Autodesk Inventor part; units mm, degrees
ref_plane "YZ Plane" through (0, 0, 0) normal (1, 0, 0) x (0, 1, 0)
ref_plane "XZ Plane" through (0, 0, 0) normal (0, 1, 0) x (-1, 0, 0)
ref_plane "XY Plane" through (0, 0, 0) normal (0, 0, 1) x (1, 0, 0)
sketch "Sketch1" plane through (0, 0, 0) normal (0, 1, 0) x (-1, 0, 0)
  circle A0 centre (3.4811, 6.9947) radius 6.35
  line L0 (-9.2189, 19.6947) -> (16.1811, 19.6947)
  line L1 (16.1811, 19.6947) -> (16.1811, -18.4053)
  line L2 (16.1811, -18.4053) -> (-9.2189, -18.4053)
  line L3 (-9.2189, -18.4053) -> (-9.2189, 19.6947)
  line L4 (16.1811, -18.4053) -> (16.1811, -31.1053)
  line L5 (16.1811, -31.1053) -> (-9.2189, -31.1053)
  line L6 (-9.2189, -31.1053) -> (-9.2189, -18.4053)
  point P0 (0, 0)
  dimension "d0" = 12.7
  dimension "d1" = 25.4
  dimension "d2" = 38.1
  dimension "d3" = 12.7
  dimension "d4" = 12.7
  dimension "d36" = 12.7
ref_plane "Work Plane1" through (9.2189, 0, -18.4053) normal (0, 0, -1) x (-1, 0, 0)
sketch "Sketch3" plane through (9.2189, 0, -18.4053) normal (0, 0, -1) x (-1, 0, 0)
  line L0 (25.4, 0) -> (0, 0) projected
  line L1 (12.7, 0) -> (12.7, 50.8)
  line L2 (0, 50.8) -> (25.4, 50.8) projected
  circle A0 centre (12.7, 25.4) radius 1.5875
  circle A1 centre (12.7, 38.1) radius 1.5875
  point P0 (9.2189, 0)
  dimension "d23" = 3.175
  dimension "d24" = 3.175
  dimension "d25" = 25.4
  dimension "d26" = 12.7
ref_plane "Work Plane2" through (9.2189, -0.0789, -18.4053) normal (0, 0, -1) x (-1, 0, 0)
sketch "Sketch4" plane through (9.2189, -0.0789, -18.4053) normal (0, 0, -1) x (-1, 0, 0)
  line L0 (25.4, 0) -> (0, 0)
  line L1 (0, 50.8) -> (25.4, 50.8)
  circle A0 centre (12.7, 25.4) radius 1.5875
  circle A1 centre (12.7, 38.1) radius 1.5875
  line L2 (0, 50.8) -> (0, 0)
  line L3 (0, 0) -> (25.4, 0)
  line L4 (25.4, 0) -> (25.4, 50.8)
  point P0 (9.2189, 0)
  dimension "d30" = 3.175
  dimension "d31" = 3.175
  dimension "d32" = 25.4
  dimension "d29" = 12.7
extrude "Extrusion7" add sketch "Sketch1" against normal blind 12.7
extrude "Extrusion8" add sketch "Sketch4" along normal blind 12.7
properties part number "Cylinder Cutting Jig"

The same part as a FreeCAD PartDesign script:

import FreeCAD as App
import Part
import Sketcher
Q = App.Units.Quantity


def add_polygon(sketch, points):
    """Adds a closed chain of lines whose ends are joined by coincident constraints."""
    first, n = sketch.GeometryCount, len(points)
    for a, b in zip(points, points[1:] + points[:1]):
        sketch.addGeometry(Part.LineSegment(App.Vector(*a, 0), App.Vector(*b, 0)), False)
    for i in range(n):
        sketch.addConstraint(Sketcher.Constraint("Coincident", first + i, 2, first + (i + 1) % n, 1))

doc = App.newDocument("Part")
params = doc.addObject("Spreadsheet::Sheet", "Params")
for row, (alias, value) in enumerate([
    ("sketch1_diameter", "0.5 in"),
    ("sketch1_width", "1 in"),
    ("pad1_length", "0.5 in"),
    ("sketch2_width", "1 in"),
    ("sketch2_diameter", "0.125 in"),
    ("pad2_length", "0.5 in"),
], start=1):
    params.set(f"A{row}", alias)
    params.set(f"B{row}", "=" + value)
    params.setAlias(f"B{row}", alias)

body = doc.addObject("PartDesign::Body", "Body")

# Sketch on XZ plane
sketch1 = body.newObject("Sketcher::SketchObject", "Sketch")
sketch1.AttachmentSupport = (doc.getObject("XZ_Plane"), [""])
sketch1.MapMode = "FlatFace"
add_polygon(sketch1, [(-16, 20), (9, 20), (9, -31), (-16, -31)])  # lines 0-3
sketch1.addGeometry(Part.Circle(App.Vector(-3, 7, 0), App.Vector(0, 0, 1), 6), False)  # 4
sketch1.addConstraint(Sketcher.Constraint("Horizontal", 0))
sketch1.addConstraint(Sketcher.Constraint("Vertical", 1))
sketch1.addConstraint(Sketcher.Constraint("Horizontal", 2))
sketch1.addConstraint(Sketcher.Constraint("Vertical", 3))
sketch1.addConstraint(Sketcher.Constraint("Diameter", 4, Q("0.5 in")))
sketch1.addConstraint(Sketcher.Constraint("DistanceX", 0, 1, 0, 2, Q("1 in")))
sketch1.addConstraint(Sketcher.Constraint("DistanceX", 4, 3, 0, 2, Q("0.5 in")))
sketch1.addConstraint(Sketcher.Constraint("DistanceY", 4, 3, 0, 2, Q("0.5 in")))
sketch1.addConstraint(Sketcher.Constraint("DistanceY", 1, 2, 4, 3, Q("1.5 in")))
sketch1.addConstraint(Sketcher.Constraint("DistanceX", 4, 3, -1, 1, 3.481))
sketch1.addConstraint(Sketcher.Constraint("DistanceY", -1, 1, 4, 3, 6.9947))
sketch1.setExpression("Constraints[8]", "Params.sketch1_diameter")
sketch1.setExpression("Constraints[9]", "Params.sketch1_width")
pad1 = body.newObject("PartDesign::Pad", "Pad")
pad1.Profile = sketch1
pad1.setExpression("Length", "Params.pad1_length")

# Sketch on XY plane
sketch2 = body.newObject("Sketcher::SketchObject", "Sketch001")
sketch2.AttachmentSupport = (doc.getObject("XY_Plane"), [""])
sketch2.MapMode = "FlatFace"
sketch2.AttachmentOffset = App.Placement(App.Vector(0, 0, -18.4053), App.Rotation())
add_polygon(sketch2, [(9.2, -0.1), (-16.2, -0.1), (-16.2, 50.7), (9.2, 50.7)])  # lines 0-3
sketch2.addGeometry(Part.Circle(App.Vector(-3.5, 25.3, 0), App.Vector(0, 0, 1), 1.6), False)  # 4
sketch2.addGeometry(Part.Circle(App.Vector(-3.5, 38, 0), App.Vector(0, 0, 1), 1.6), False)  # 5
sketch2.addConstraint(Sketcher.Constraint("Horizontal", 0))
sketch2.addConstraint(Sketcher.Constraint("Vertical", 1))
sketch2.addConstraint(Sketcher.Constraint("Horizontal", 2))
sketch2.addConstraint(Sketcher.Constraint("Vertical", 3))
sketch2.addConstraint(Sketcher.Constraint("Equal", 4, 5))
sketch2.addConstraint(Sketcher.Constraint("Vertical", 4, 3, 5, 3))
sketch2.addConstraint(Sketcher.Constraint("DistanceX", 0, 2, 0, 1, Q("1 in")))
sketch2.addConstraint(Sketcher.Constraint("Diameter", 4, Q("0.125 in")))
sketch2.addConstraint(Sketcher.Constraint("DistanceY", 0, 2, 4, 3, Q("1 in")))
sketch2.addConstraint(Sketcher.Constraint("DistanceY", 4, 3, 1, 2, Q("1 in")))
sketch2.addConstraint(Sketcher.Constraint("DistanceY", 4, 3, 5, 3, Q("0.5 in")))
sketch2.addConstraint(Sketcher.Constraint("DistanceX", 0, 2, 4, 3, Q("0.5 in")))
sketch2.addConstraint(Sketcher.Constraint("DistanceY", -1, 1, 4, 3, Q("0.9969 in")))
sketch2.addConstraint(Sketcher.Constraint("DistanceX", 4, 3, -1, 1, 3.481))
sketch2.setExpression("Constraints[10]", "Params.sketch2_width")
sketch2.setExpression("Constraints[11]", "Params.sketch2_diameter")
pad2 = body.newObject("PartDesign::Pad", "Pad001")
pad2.Profile = sketch2
pad2.setExpression("Length", "Params.pad2_length")
pad2.Reversed = True

doc.recompute()
